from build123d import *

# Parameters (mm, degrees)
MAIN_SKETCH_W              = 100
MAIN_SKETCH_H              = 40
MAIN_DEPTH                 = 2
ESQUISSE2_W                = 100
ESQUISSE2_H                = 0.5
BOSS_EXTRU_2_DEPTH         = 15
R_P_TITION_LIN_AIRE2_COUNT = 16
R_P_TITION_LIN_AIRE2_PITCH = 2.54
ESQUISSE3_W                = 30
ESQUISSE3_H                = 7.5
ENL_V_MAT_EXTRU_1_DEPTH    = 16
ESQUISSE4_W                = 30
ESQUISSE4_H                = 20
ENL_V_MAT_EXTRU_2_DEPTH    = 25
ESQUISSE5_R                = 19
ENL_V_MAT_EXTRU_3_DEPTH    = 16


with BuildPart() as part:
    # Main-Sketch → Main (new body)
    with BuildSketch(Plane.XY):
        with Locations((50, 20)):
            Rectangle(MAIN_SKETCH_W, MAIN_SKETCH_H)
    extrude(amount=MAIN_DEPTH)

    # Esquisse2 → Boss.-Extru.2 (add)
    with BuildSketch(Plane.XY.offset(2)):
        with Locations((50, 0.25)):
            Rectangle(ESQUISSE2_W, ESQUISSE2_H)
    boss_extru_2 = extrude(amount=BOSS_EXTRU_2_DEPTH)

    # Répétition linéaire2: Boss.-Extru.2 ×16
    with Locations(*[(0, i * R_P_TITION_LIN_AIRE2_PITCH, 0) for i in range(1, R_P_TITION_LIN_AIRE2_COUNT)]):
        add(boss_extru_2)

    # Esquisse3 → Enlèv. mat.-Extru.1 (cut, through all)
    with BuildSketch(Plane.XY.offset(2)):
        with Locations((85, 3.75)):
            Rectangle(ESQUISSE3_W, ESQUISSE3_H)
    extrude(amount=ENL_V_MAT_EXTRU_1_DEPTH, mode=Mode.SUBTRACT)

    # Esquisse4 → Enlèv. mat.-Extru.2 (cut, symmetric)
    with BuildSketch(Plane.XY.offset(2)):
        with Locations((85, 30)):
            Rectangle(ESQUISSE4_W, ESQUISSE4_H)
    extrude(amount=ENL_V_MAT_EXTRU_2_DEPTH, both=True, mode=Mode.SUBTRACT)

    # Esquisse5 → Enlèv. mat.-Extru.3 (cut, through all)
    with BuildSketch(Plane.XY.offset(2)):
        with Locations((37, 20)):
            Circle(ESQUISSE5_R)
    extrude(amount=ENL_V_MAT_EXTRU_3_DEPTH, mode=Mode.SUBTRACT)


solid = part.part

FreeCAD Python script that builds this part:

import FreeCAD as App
import Part
import Sketcher
from FreeCAD import Vector
Q = App.Units.Quantity


def add_polygon(sketch, points):
    """Adds a closed chain of lines whose ends are joined by coincident constraints."""
    first, n = sketch.GeometryCount, len(points)
    for a, b in zip(points, points[1:] + points[:1]):
        sketch.addGeometry(Part.LineSegment(App.Vector(*a, 0), App.Vector(*b, 0)), False)
    for i in range(n):
        sketch.addConstraint(Sketcher.Constraint("Coincident", first + i, 2, first + (i + 1) % n, 1))

doc = App.newDocument("Part")
body = doc.addObject("PartDesign::Body", "Body")

# Sketch on XY plane
sketch1 = body.newObject("Sketcher::SketchObject", "Sketch")
sketch1.AttachmentSupport = (doc.getObject("XY_Plane"), [""])
sketch1.MapMode = "FlatFace"
add_polygon(sketch1, [(0, 40), (0, 0), (100, 0), (100, 40)])  # lines 0-3
sketch1.addConstraint([
    Sketcher.Constraint("Vertical", 0),
    Sketcher.Constraint("Horizontal", 1),
    Sketcher.Constraint("Vertical", 2),
    Sketcher.Constraint("Horizontal", 3),
    Sketcher.Constraint("Coincident", 0, 2, -1, 1),
    Sketcher.Constraint("DistanceX", 1, 1, 1, 2, Q("100 mm")),
    Sketcher.Constraint("DistanceY", 0, 2, 0, 1, Q("40 mm")),
])
pad1 = body.newObject("PartDesign::Pad", "Pad")
pad1.Profile = sketch1
pad1.Length = 2

# Sketch on XY plane
sketch2 = body.newObject("Sketcher::SketchObject", "Sketch001")
sketch2.AttachmentSupport = (doc.getObject("XY_Plane"), [""])
sketch2.MapMode = "FlatFace"
sketch2.AttachmentOffset = App.Placement(Vector(0, 0, 2), App.Rotation())
add_polygon(sketch2, [(0, 0.5), (0, 0), (100, 0), (100, 0.5)])  # lines 0-3
sketch2.addConstraint([
    Sketcher.Constraint("Vertical", 0),
    Sketcher.Constraint("Horizontal", 1),
    Sketcher.Constraint("Vertical", 2),
    Sketcher.Constraint("Horizontal", 3),
    Sketcher.Constraint("Coincident", 0, 2, -1, 1),
    Sketcher.Constraint("DistanceX", 1, 1, 1, 2, Q("100 mm")),
    Sketcher.Constraint("DistanceY", 0, 2, 0, 1, Q("0.5 mm")),
])
pad2 = body.newObject("PartDesign::Pad", "Pad001")
pad2.Profile = sketch2
pad2.Length = 15
doc.recompute()

linearpattern = body.newObject("PartDesign::LinearPattern", "LinearPattern")
linearpattern.Originals = [pad2]
linearpattern.Direction = (doc.getObject("Y_Axis"), [""])
linearpattern.Mode = "offset"
linearpattern.Offset = 2.54
linearpattern.Occurrences = 16
body.Tip = linearpattern

# Sketch on XY plane
sketch3 = body.newObject("Sketcher::SketchObject", "Sketch002")
sketch3.AttachmentSupport = (doc.getObject("XY_Plane"), [""])
sketch3.MapMode = "FlatFace"
sketch3.AttachmentOffset = App.Placement(Vector(0, 0, 2), App.Rotation())
add_polygon(sketch3, [(70, 7.5), (70, 0), (100, 0), (100, 7.5)])  # lines 0-3
sketch3.addConstraint([
    Sketcher.Constraint("Vertical", 0),
    Sketcher.Constraint("Horizontal", 1),
    Sketcher.Constraint("Vertical", 2),
    Sketcher.Constraint("Horizontal", 3),
    Sketcher.Constraint("PointOnObject", 0, 2, -1),
    Sketcher.Constraint("DistanceX", 1, 1, 1, 2, Q("30 mm")),
    Sketcher.Constraint("DistanceY", 0, 2, 0, 1, Q("7.5 mm")),
    Sketcher.Constraint("DistanceX", -1, 1, 0, 2, Q("70 mm")),
])
pocket1 = body.newObject("PartDesign::Pocket", "Pocket")
pocket1.Profile = sketch3
pocket1.Type = "ThroughAll"
pocket1.Reversed = True

# Sketch on XY plane
sketch4 = body.newObject("Sketcher::SketchObject", "Sketch003")
sketch4.AttachmentSupport = (doc.getObject("XY_Plane"), [""])
sketch4.MapMode = "FlatFace"
sketch4.AttachmentOffset = App.Placement(Vector(0, 0, 2), App.Rotation())
add_polygon(sketch4, [(70, 40), (70, 20), (100, 20), (100, 40)])  # lines 0-3
sketch4.addConstraint([
    Sketcher.Constraint("Vertical", 0),
    Sketcher.Constraint("Horizontal", 1),
    Sketcher.Constraint("Vertical", 2),
    Sketcher.Constraint("Horizontal", 3),
    Sketcher.Constraint("DistanceX", 1, 1, 1, 2, Q("30 mm")),
    Sketcher.Constraint("DistanceY", 0, 2, 0, 1, Q("20 mm")),
    Sketcher.Constraint("DistanceX", -1, 1, 0, 2, Q("70 mm")),
    Sketcher.Constraint("DistanceY", -1, 1, 0, 2, Q("20 mm")),
])
pocket2 = body.newObject("PartDesign::Pocket", "Pocket001")
pocket2.Profile = sketch4
pocket2.Length = 50
pocket2.Midplane = True

# Sketch on XY plane
sketch5 = body.newObject("Sketcher::SketchObject", "Sketch004")
sketch5.AttachmentSupport = (doc.getObject("XY_Plane"), [""])
sketch5.MapMode = "FlatFace"
sketch5.AttachmentOffset = App.Placement(Vector(0, 0, 2), App.Rotation())
sketch5.addGeometry(Part.Circle(Vector(37, 20, 0), Vector(0, 0, 1), 19), False)
sketch5.addConstraint([
    Sketcher.Constraint("Diameter", 0, Q("38 mm")),
    Sketcher.Constraint("DistanceX", -1, 1, 0, 3, Q("37 mm")),
    Sketcher.Constraint("DistanceY", -1, 1, 0, 3, Q("20 mm")),
])
pocket3 = body.newObject("PartDesign::Pocket", "Pocket002")
pocket3.Profile = sketch5
pocket3.Type = "ThroughAll"
pocket3.Reversed = True

doc.recompute()
